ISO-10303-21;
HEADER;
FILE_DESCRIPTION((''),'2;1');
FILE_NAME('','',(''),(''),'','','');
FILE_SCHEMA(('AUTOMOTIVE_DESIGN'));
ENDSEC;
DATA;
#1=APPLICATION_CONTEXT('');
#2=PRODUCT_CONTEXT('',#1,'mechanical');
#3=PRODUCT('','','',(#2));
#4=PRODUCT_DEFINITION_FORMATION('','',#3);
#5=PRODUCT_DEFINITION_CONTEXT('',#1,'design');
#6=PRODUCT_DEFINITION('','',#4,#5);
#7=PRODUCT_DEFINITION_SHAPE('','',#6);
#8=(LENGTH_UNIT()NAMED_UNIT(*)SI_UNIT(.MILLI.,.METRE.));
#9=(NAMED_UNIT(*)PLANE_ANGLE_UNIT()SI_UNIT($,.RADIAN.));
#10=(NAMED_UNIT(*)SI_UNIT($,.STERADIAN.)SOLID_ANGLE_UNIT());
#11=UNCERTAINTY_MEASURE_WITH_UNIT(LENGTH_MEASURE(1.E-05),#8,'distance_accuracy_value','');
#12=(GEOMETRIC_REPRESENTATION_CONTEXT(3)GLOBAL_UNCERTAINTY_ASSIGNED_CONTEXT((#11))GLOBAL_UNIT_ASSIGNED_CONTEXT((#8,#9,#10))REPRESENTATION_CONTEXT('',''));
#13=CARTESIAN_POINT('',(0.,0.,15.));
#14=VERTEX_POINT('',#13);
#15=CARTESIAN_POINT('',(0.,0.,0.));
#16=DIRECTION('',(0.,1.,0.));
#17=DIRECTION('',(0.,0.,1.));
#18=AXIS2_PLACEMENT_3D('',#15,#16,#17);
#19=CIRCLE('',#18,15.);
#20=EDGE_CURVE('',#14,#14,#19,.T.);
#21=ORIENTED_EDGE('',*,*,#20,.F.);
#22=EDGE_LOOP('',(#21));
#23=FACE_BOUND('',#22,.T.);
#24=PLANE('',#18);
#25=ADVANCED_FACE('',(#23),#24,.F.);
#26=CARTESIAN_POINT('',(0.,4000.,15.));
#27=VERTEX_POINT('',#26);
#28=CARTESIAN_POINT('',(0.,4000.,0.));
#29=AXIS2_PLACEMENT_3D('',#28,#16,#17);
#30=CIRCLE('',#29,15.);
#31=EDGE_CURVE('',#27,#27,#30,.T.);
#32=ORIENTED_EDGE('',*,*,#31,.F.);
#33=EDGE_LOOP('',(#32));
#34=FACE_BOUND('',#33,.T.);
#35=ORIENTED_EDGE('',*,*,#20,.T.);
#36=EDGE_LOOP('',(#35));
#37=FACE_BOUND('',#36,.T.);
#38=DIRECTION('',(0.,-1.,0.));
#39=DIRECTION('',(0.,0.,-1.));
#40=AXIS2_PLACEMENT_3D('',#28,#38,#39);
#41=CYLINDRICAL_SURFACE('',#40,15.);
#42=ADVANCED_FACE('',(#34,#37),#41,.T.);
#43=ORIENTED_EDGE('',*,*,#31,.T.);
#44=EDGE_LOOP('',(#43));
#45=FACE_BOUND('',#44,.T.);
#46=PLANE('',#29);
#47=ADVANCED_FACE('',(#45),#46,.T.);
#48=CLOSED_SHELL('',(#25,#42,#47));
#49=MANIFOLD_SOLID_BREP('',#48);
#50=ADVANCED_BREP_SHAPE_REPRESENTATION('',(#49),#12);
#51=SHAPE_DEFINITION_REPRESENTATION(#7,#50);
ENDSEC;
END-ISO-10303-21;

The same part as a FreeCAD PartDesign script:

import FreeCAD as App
import Part
import Sketcher

V = App.Vector

doc = App.newDocument("Part")
body = doc.addObject("PartDesign::Body", "Body")

# Sketch on XZ plane
sketch1 = body.newObject("Sketcher::SketchObject", "Sketch")
sketch1.AttachmentSupport = (doc.getObject("XZ_Plane"), [""])
sketch1.MapMode = "FlatFace"
sketch1.addGeometry(Part.Circle(V(0, 0, 0), V(0, 0, 1), 15), False)
sketch1.addConstraint([
    Sketcher.Constraint("Coincident", 0, 3, -1, 1),
    Sketcher.Constraint("Diameter", 0, 30.0),
])
pad1 = body.newObject("PartDesign::Pad", "Pad")
pad1.Profile = sketch1
pad1.Length = 4000
pad1.Reversed = True

doc.recompute()
